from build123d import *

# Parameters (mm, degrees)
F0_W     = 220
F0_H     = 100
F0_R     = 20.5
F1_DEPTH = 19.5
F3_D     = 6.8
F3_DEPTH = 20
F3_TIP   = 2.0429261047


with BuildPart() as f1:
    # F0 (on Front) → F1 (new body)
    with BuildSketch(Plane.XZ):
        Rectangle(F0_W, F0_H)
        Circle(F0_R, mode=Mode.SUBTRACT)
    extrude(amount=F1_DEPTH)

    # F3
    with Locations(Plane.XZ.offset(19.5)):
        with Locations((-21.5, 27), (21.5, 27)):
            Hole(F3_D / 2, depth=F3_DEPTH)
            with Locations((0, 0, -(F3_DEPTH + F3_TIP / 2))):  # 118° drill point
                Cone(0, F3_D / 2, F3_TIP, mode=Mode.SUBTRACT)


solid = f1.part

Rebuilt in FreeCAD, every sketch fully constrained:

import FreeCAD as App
import Part
import Sketcher
Q = App.Units.Quantity

doc = App.newDocument("Part")
body = doc.addObject("PartDesign::Body", "Body")

# Sketch on XZ plane
sketch1 = doc.addObject("Sketcher::SketchObject", "Sketch")
body.addObject(sketch1)
sketch1.AttachmentSupport = (doc.XZ_Plane, [""])
sketch1.MapMode = "FlatFace"
sketch1.addGeometry([
    Part.LineSegment(App.Vector(-110, 50, 0), App.Vector(-110, -50, 0)),  # 0
    Part.LineSegment(App.Vector(-110, -50, 0), App.Vector(110, -50, 0)),  # 1
    Part.LineSegment(App.Vector(110, -50, 0), App.Vector(110, 50, 0)),  # 2
    Part.LineSegment(App.Vector(110, 50, 0), App.Vector(-110, 50, 0)),  # 3
    Part.Circle(App.Vector(0, 0, 0), App.Vector(0, 0, 1), 20),  # 4
], False)
sketch1.addConstraint([
    Sketcher.Constraint("Coincident", 0, 2, 1, 1),
    Sketcher.Constraint("Coincident", 1, 2, 2, 1),
    Sketcher.Constraint("Coincident", 2, 2, 3, 1),
    Sketcher.Constraint("Coincident", 3, 2, 0, 1),
    Sketcher.Constraint("Vertical", 0),
    Sketcher.Constraint("Horizontal", 1),
    Sketcher.Constraint("Vertical", 2),
    Sketcher.Constraint("Horizontal", 3),
    Sketcher.Constraint("Coincident", 4, 3, -1, 1),
    Sketcher.Constraint("Symmetric", 0, 2, 2, 2, -1, 1),
    Sketcher.Constraint("Diameter", 4, Q("41 mm")),
    Sketcher.Constraint("DistanceX", 1, 1, 1, 2, Q("220 mm")),
    Sketcher.Constraint("DistanceY", 0, 2, 0, 1, Q("100 mm")),
])
pad1 = doc.addObject("PartDesign::Pad", "Pad")
body.addObject(pad1)
pad1.Profile = sketch1
pad1.Length = 19.5

# Sketch on XZ plane
sketch2 = doc.addObject("Sketcher::SketchObject", "Sketch001")
body.addObject(sketch2)
sketch2.AttachmentSupport = (doc.XZ_Plane, [""])
sketch2.MapMode = "FlatFace"
sketch2.AttachmentOffset = App.Placement(App.Vector(0, 0, 19.5), App.Rotation())
sketch2.addGeometry([
    Part.Circle(App.Vector(-21.5, 27, 0), App.Vector(0, 0, 1), 3.4),
    Part.Circle(App.Vector(21.5, 27, 0), App.Vector(0, 0, 1), 3.4),
], False)
sketch2.addConstraint([
    Sketcher.Constraint("Equal", 0, 1),
    Sketcher.Constraint("Symmetric", 0, 3, 1, 3, -2),
    Sketcher.Constraint("Diameter", 0, Q("6.8 mm")),
    Sketcher.Constraint("DistanceY", -1, 1, 0, 3, Q("27 mm")),
    Sketcher.Constraint("DistanceX", 0, 3, 1, 3, Q("43 mm")),
])
doc.recompute()
hole = doc.addObject("PartDesign::Hole", "Hole")
body.addObject(hole)
hole.Profile = sketch2
hole.ThreadType = "None"
hole.Diameter = 6.8
hole.DepthType = "Dimension"
hole.Depth = 20
hole.DrillPoint = "Angled"
hole.DrillPointAngle = 118

doc.recompute()
